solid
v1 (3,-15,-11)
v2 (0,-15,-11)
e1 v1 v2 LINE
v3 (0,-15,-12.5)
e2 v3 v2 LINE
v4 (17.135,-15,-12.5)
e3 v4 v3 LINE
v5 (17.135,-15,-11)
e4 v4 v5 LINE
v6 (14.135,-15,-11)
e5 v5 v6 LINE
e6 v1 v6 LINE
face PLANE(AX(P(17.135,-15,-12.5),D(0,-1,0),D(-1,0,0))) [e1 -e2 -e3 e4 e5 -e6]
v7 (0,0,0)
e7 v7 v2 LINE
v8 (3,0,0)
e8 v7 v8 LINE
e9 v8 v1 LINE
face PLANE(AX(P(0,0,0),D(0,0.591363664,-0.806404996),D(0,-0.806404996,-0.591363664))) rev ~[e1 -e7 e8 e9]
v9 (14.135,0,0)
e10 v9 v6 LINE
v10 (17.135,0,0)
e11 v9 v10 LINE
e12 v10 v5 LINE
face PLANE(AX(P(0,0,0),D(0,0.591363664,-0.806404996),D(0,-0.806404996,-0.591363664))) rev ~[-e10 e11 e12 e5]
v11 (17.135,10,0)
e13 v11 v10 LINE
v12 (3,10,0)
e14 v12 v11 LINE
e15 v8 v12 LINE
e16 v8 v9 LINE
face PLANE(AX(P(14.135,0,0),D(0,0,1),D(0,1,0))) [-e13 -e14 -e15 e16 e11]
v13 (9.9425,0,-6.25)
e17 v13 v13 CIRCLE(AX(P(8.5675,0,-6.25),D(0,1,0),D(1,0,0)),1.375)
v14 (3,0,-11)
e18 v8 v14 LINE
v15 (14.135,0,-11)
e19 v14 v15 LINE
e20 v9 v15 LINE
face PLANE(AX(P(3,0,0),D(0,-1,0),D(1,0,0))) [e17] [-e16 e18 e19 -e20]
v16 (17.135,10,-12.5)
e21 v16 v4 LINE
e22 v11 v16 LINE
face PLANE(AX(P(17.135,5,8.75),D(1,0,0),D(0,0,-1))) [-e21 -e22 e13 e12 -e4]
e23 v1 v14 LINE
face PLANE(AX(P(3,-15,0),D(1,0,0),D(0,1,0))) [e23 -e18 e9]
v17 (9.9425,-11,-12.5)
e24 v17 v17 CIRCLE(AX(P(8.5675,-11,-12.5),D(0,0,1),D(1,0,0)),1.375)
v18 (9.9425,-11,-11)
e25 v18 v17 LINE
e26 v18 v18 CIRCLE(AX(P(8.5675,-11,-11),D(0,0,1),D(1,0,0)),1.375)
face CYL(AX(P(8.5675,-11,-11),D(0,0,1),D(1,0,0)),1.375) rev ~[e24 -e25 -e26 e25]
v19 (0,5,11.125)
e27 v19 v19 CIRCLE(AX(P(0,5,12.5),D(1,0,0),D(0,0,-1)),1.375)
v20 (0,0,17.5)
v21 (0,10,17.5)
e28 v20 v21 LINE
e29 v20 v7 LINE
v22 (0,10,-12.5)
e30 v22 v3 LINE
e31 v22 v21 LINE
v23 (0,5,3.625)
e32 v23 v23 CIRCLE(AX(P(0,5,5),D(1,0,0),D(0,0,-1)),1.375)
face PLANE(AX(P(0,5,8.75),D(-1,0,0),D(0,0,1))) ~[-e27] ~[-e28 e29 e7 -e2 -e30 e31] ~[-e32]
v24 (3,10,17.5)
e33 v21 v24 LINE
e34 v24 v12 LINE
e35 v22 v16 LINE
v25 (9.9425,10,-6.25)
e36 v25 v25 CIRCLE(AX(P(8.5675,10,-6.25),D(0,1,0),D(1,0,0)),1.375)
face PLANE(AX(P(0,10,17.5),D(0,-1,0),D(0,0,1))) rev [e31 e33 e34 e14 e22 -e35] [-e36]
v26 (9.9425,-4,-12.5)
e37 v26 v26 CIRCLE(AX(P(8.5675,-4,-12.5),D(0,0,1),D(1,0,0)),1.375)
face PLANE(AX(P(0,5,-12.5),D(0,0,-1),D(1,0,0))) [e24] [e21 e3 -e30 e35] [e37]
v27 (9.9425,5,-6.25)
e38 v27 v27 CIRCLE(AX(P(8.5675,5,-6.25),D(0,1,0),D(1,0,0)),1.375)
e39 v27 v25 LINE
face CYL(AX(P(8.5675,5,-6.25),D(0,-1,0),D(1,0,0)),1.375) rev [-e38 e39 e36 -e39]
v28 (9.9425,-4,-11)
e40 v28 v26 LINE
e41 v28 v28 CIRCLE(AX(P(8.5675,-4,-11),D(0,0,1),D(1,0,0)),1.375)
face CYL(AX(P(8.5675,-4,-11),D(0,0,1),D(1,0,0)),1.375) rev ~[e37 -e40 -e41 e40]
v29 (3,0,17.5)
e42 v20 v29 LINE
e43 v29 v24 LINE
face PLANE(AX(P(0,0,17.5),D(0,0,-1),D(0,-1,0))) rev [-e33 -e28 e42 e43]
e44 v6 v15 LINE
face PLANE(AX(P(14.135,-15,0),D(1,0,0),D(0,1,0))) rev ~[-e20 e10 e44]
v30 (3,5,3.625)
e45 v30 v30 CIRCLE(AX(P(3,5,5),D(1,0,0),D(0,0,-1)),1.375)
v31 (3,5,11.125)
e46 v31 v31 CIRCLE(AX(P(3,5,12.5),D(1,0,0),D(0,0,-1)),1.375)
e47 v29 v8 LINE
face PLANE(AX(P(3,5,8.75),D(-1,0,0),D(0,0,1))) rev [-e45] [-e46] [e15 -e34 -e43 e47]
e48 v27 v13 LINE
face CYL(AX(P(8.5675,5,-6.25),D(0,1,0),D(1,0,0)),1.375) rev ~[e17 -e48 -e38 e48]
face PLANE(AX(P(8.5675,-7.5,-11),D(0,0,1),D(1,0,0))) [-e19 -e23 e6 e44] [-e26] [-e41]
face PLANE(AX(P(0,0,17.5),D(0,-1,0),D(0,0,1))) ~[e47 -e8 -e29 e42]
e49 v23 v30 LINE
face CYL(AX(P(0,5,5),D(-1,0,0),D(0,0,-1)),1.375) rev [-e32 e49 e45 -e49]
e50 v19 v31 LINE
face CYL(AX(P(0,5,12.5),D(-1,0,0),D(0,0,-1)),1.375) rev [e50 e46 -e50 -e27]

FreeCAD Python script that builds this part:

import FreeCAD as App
import Part
import Sketcher

doc = App.newDocument("Part")
body = doc.addObject("PartDesign::Body", "Body")

sketch1 = doc.addObject("Sketcher::SketchObject", "Sketch")
body.addObject(sketch1)
sketch1.AttachmentSupport = (doc.XZ_Plane, [""])
sketch1.MapMode = "FlatFace"
sketch1.addGeometry(Part.LineSegment(App.Vector(0, -12.5, 0), App.Vector(0, 0, 0)), False)
sketch1.addGeometry(Part.LineSegment(App.Vector(0, 0, 0), App.Vector(17.135, 0, 0)), False)
sketch1.addGeometry(Part.LineSegment(App.Vector(17.135, 0, 0), App.Vector(17.135, -12.5, 0)), False)
sketch1.addGeometry(Part.LineSegment(App.Vector(17.135, -12.5, 0), App.Vector(0, -12.5, 0)), False)
sketch1.addConstraint(Sketcher.Constraint("Coincident", 0, 2, 1, 1))
sketch1.addConstraint(Sketcher.Constraint("Coincident", 1, 2, 2, 1))
sketch1.addConstraint(Sketcher.Constraint("Coincident", 2, 2, 3, 1))
sketch1.addConstraint(Sketcher.Constraint("Coincident", 3, 2, 0, 1))
sketch1.addConstraint(Sketcher.Constraint("Vertical", 0))
sketch1.addConstraint(Sketcher.Constraint("Horizontal", 1))
sketch1.addConstraint(Sketcher.Constraint("Vertical", 2))
sketch1.addConstraint(Sketcher.Constraint("Horizontal", 3))
sketch1.addConstraint(Sketcher.Constraint("Coincident", 0, 2, -1, 1))
sketch1.addConstraint(Sketcher.Constraint("DistanceY", 0, 1, 0, 2, 12.5))
sketch1.addConstraint(Sketcher.Constraint("DistanceX", 1, 1, 1, 2, 17.135))
pad1 = doc.addObject("PartDesign::Pad", "Pad")
body.addObject(pad1)
pad1.Profile = sketch1
pad1.Length = 5
pad1.Reversed = True

sketch2 = doc.addObject("Sketcher::SketchObject", "Sketch001")
body.addObject(sketch2)
sketch2.AttachmentSupport = (doc.XY_Plane, [""])
sketch2.MapMode = "FlatFace"
sketch2.AttachmentOffset = App.Placement(App.Vector(0, 0, -12.5), App.Rotation())
sketch2.addGeometry(Part.LineSegment(App.Vector(17.135, 0, 0), App.Vector(17.135, -15, 0)), False)
sketch2.addGeometry(Part.LineSegment(App.Vector(17.135, -15, 0), App.Vector(0, -15, 0)), False)
sketch2.addGeometry(Part.LineSegment(App.Vector(0, -15, 0), App.Vector(0, 0, 0)), False)
sketch2.addGeometry(Part.LineSegment(App.Vector(0, 0, 0), App.Vector(17.135, 0, 0)), False)
sketch2.addConstraint(Sketcher.Constraint("Coincident", 0, 2, 1, 1))
sketch2.addConstraint(Sketcher.Constraint("Coincident", 1, 2, 2, 1))
sketch2.addConstraint(Sketcher.Constraint("Coincident", 2, 2, 3, 1))
sketch2.addConstraint(Sketcher.Constraint("Coincident", 3, 2, 0, 1))
sketch2.addConstraint(Sketcher.Constraint("Vertical", 0))
sketch2.addConstraint(Sketcher.Constraint("Horizontal", 1))
sketch2.addConstraint(Sketcher.Constraint("Vertical", 2))
sketch2.addConstraint(Sketcher.Constraint("Horizontal", 3))
sketch2.addConstraint(Sketcher.Constraint("Coincident", 2, 2, -1, 1))
sketch2.addConstraint(Sketcher.Constraint("DistanceY", 0, 2, 0, 1, 15.0))
sketch2.addConstraint(Sketcher.Constraint("DistanceX", 1, 2, 1, 1, 17.135))
pad2 = doc.addObject("PartDesign::Pad", "Pad001")
body.addObject(pad2)
pad2.Profile = sketch2
pad2.Length = 1.5

sketch3 = doc.addObject("Sketcher::SketchObject", "Sketch002")
body.addObject(sketch3)
sketch3.AttachmentSupport = (doc.YZ_Plane, [""])
sketch3.MapMode = "FlatFace"
sketch3.addGeometry(Part.LineSegment(App.Vector(-15, -11, 0), App.Vector(0, 0, 0)), False)
sketch3.addGeometry(Part.LineSegment(App.Vector(0, 0, 0), App.Vector(0, -11, 0)), False)
sketch3.addGeometry(Part.LineSegment(App.Vector(0, -11, 0), App.Vector(-15, -11, 0)), False)
sketch3.addConstraint(Sketcher.Constraint("Coincident", 0, 2, 1, 1))
sketch3.addConstraint(Sketcher.Constraint("Coincident", 1, 2, 2, 1))
sketch3.addConstraint(Sketcher.Constraint("Coincident", 2, 2, 0, 1))
sketch3.addConstraint(Sketcher.Constraint("Vertical", 1))
sketch3.addConstraint(Sketcher.Constraint("Horizontal", 2))
sketch3.addConstraint(Sketcher.Constraint("Coincident", 0, 2, -1, 1))
sketch3.addConstraint(Sketcher.Constraint("DistanceX", 2, 2, 2, 1, 15.0))
sketch3.addConstraint(Sketcher.Constraint("DistanceY", 1, 2, 1, 1, 11.0))
pad3 = doc.addObject("PartDesign::Pad", "Pad002")
body.addObject(pad3)
pad3.Profile = sketch3
pad3.Length = 17.135

sketch4 = doc.addObject("Sketcher::SketchObject", "Sketch003")
body.addObject(sketch4)
sketch4.AttachmentSupport = (doc.XY_Plane, [""])
sketch4.MapMode = "FlatFace"
sketch4.addGeometry(Part.LineSegment(App.Vector(3, 0, 0), App.Vector(3, -15, 0)), False)
sketch4.addGeometry(Part.LineSegment(App.Vector(3, -15, 0), App.Vector(14.135, -15, 0)), False)
sketch4.addGeometry(Part.LineSegment(App.Vector(14.135, -15, 0), App.Vector(14.135, 0, 0)), False)
sketch4.addGeometry(Part.LineSegment(App.Vector(14.135, 0, 0), App.Vector(3, 0, 0)), False)
sketch4.addConstraint(Sketcher.Constraint("Coincident", 0, 2, 1, 1))
sketch4.addConstraint(Sketcher.Constraint("Coincident", 1, 2, 2, 1))
sketch4.addConstraint(Sketcher.Constraint("Coincident", 2, 2, 3, 1))
sketch4.addConstraint(Sketcher.Constraint("Coincident", 3, 2, 0, 1))
sketch4.addConstraint(Sketcher.Constraint("Vertical", 0))
sketch4.addConstraint(Sketcher.Constraint("Horizontal", 1))
sketch4.addConstraint(Sketcher.Constraint("Vertical", 2))
sketch4.addConstraint(Sketcher.Constraint("Horizontal", 3))
sketch4.addConstraint(Sketcher.Constraint("PointOnObject", 2, 2, -1))
sketch4.addConstraint(Sketcher.Constraint("DistanceY", 0, 2, 0, 1, 15.0))
sketch4.addConstraint(Sketcher.Constraint("DistanceX", -1, 1, 0, 2, 3.0))
sketch4.addConstraint(Sketcher.Constraint("DistanceX", 1, 1, 1, 2, 11.135))
pocket1 = doc.addObject("PartDesign::Pocket", "Pocket")
body.addObject(pocket1)
pocket1.Profile = sketch4
pocket1.Length = 11

sketch5 = doc.addObject("Sketcher::SketchObject", "Sketch004")
body.addObject(sketch5)
sketch5.AttachmentSupport = (doc.XY_Plane, [""])
sketch5.MapMode = "FlatFace"
sketch5.AttachmentOffset = App.Placement(App.Vector(0, 0, -11), App.Rotation())
sketch5.addGeometry(Part.Circle(App.Vector(8.5675, -4, 0), App.Vector(0, 0, 1), 1.375), False)
sketch5.addGeometry(Part.Circle(App.Vector(8.5675, -11, 0), App.Vector(0, 0, 1), 1.375), False)
sketch5.addConstraint(Sketcher.Constraint("Equal", 0, 1))
sketch5.addConstraint(Sketcher.Constraint("Vertical", 0, 3, 1, 3))
sketch5.addConstraint(Sketcher.Constraint("Diameter", 0, 2.75))
sketch5.addConstraint(Sketcher.Constraint("DistanceY", 0, 3, -1, 1, 4.0))
sketch5.addConstraint(Sketcher.Constraint("DistanceY", 1, 3, -1, 1, 11.0))
sketch5.addConstraint(Sketcher.Constraint("DistanceX", -1, 1, 0, 3, 8.5675))
pocket2 = doc.addObject("PartDesign::Pocket", "Pocket001")
body.addObject(pocket2)
pocket2.Profile = sketch5
pocket2.Length = 2

sketch6 = doc.addObject("Sketcher::SketchObject", "Sketch005")
body.addObject(sketch6)
sketch6.AttachmentSupport = (doc.XZ_Plane, [""])
sketch6.MapMode = "FlatFace"
sketch6.AttachmentOffset = App.Placement(App.Vector(0, 0, -5), App.Rotation())
sketch6.addGeometry(Part.Circle(App.Vector(8.5675, -6.25, 0), App.Vector(0, 0, 1), 1.375), False)
sketch6.addConstraint(Sketcher.Constraint("Diameter", 0, 2.75))
sketch6.addConstraint(Sketcher.Constraint("DistanceY", 0, 3, -1, 1, 6.25))
sketch6.addConstraint(Sketcher.Constraint("DistanceX", -1, 1, 0, 3, 8.5675))
pocket3 = doc.addObject("PartDesign::Pocket", "Pocket002")
body.addObject(pocket3)
pocket3.Profile = sketch6
pocket3.Length = 5.75
pocket3.Reversed = True

sketch7 = doc.addObject("Sketcher::SketchObject", "Sketch006")
body.addObject(sketch7)
sketch7.AttachmentSupport = (doc.XZ_Plane, [""])
sketch7.MapMode = "FlatFace"
sketch7.AttachmentOffset = App.Placement(App.Vector(0, 0, -5), App.Rotation())
sketch7.addGeometry(Part.LineSegment(App.Vector(0, -12.5, 0), App.Vector(0, 0, 0)), False)
sketch7.addGeometry(Part.LineSegment(App.Vector(0, 0, 0), App.Vector(17.135, 0, 0)), False)
sketch7.addGeometry(Part.LineSegment(App.Vector(17.135, 0, 0), App.Vector(17.135, -12.5, 0)), False)
sketch7.addGeometry(Part.LineSegment(App.Vector(17.135, -12.5, 0), App.Vector(0, -12.5, 0)), False)
sketch7.addGeometry(Part.Circle(App.Vector(8.5675, -6.25, 0), App.Vector(0, 0, 1), 1.375), False)
sketch7.addConstraint(Sketcher.Constraint("Coincident", 0, 2, 1, 1))
sketch7.addConstraint(Sketcher.Constraint("Coincident", 1, 2, 2, 1))
sketch7.addConstraint(Sketcher.Constraint("Coincident", 2, 2, 3, 1))
sketch7.addConstraint(Sketcher.Constraint("Coincident", 3, 2, 0, 1))
sketch7.addConstraint(Sketcher.Constraint("Vertical", 0))
sketch7.addConstraint(Sketcher.Constraint("Horizontal", 1))
sketch7.addConstraint(Sketcher.Constraint("Vertical", 2))
sketch7.addConstraint(Sketcher.Constraint("Horizontal", 3))
sketch7.addConstraint(Sketcher.Constraint("Coincident", 0, 2, -1, 1))
sketch7.addConstraint(Sketcher.Constraint("Diameter", 4, 2.75))
sketch7.addConstraint(Sketcher.Constraint("DistanceY", 0, 1, 0, 2, 12.5))
sketch7.addConstraint(Sketcher.Constraint("DistanceX", 1, 1, 1, 2, 17.135))
sketch7.addConstraint(Sketcher.Constraint("DistanceY", 4, 3, -1, 1, 6.25))
sketch7.addConstraint(Sketcher.Constraint("DistanceX", -1, 1, 4, 3, 8.5675))
pad4 = doc.addObject("PartDesign::Pad", "Pad003")
body.addObject(pad4)
pad4.Profile = sketch7
pad4.Length = 5
pad4.Reversed = True

sketch8 = doc.addObject("Sketcher::SketchObject", "Sketch007")
body.addObject(sketch8)
sketch8.AttachmentSupport = (doc.YZ_Plane, [""])
sketch8.MapMode = "FlatFace"
sketch8.AttachmentOffset = App.Placement(App.Vector(0, 0, 17.135), App.Rotation())
sketch8.addGeometry(Part.LineSegment(App.Vector(10, 17.5, 0), App.Vector(0, 17.5, 0)), False)
sketch8.addGeometry(Part.LineSegment(App.Vector(0, 17.5, 0), App.Vector(0, 0, 0)), False)
sketch8.addGeometry(Part.LineSegment(App.Vector(0, 0, 0), App.Vector(10, 0, 0)), False)
sketch8.addGeometry(Part.LineSegment(App.Vector(10, 0, 0), App.Vector(10, 17.5, 0)), False)
sketch8.addGeometry(Part.Circle(App.Vector(5, 12.5, 0), App.Vector(0, 0, 1), 1.375), False)
sketch8.addGeometry(Part.Circle(App.Vector(5, 5, 0), App.Vector(0, 0, 1), 1.375), False)
sketch8.addConstraint(Sketcher.Constraint("Coincident", 0, 2, 1, 1))
sketch8.addConstraint(Sketcher.Constraint("Coincident", 1, 2, 2, 1))
sketch8.addConstraint(Sketcher.Constraint("Coincident", 2, 2, 3, 1))
sketch8.addConstraint(Sketcher.Constraint("Coincident", 3, 2, 0, 1))
sketch8.addConstraint(Sketcher.Constraint("Horizontal", 0))
sketch8.addConstraint(Sketcher.Constraint("Vertical", 1))
sketch8.addConstraint(Sketcher.Constraint("Horizontal", 2))
sketch8.addConstraint(Sketcher.Constraint("Vertical", 3))
sketch8.addConstraint(Sketcher.Constraint("Coincident", 1, 2, -1, 1))
sketch8.addConstraint(Sketcher.Constraint("Equal", 4, 5))
sketch8.addConstraint(Sketcher.Constraint("Vertical", 4, 3, 5, 3))
sketch8.addConstraint(Sketcher.Constraint("Diameter", 4, 2.75))
sketch8.addConstraint(Sketcher.Constraint("DistanceX", 0, 2, 0, 1, 10.0))
sketch8.addConstraint(Sketcher.Constraint("DistanceY", 1, 2, 1, 1, 17.5))
sketch8.addConstraint(Sketcher.Constraint("DistanceX", -1, 1, 4, 3, 5.0))
sketch8.addConstraint(Sketcher.Constraint("DistanceY", -1, 1, 5, 3, 5.0))
sketch8.addConstraint(Sketcher.Constraint("DistanceY", 4, 3, 0, 2, 5.0))
pad5 = doc.addObject("PartDesign::Pad", "Pad004")
body.addObject(pad5)
pad5.Profile = sketch8
pad5.Length = 3
pad5.Reversed = True
doc.recompute()

datumplane = doc.addObject("PartDesign::Plane", "DatumPlane")
body.addObject(datumplane)
datumplane.AttachmentSupport = (doc.YZ_Plane, [""])
datumplane.MapMode = "FlatFace"
datumplane.AttachmentOffset = App.Placement(App.Vector(0, 0, 8.5675), App.Rotation())
mirrored = doc.addObject("PartDesign::Mirrored", "Mirrored")
body.addObject(mirrored)
mirrored.Originals = [pad5]
mirrored.MirrorPlane = (datumplane, [""])
body.Tip = mirrored

sketch9 = doc.addObject("Sketcher::SketchObject", "Sketch008")
body.addObject(sketch9)
sketch9.AttachmentSupport = (doc.YZ_Plane, [""])
sketch9.MapMode = "FlatFace"
sketch9.AttachmentOffset = App.Placement(App.Vector(0, 0, 14.135), App.Rotation())
sketch9.addGeometry(Part.LineSegment(App.Vector(10, 0, 0), App.Vector(0, 0, 0)), False)
sketch9.addGeometry(Part.LineSegment(App.Vector(0, 0, 0), App.Vector(0, 17.5, 0)), False)
sketch9.addGeometry(Part.LineSegment(App.Vector(0, 17.5, 0), App.Vector(10, 17.5, 0)), False)
sketch9.addGeometry(Part.LineSegment(App.Vector(10, 17.5, 0), App.Vector(10, 0, 0)), False)
sketch9.addConstraint(Sketcher.Constraint("Coincident", 0, 2, 1, 1))
sketch9.addConstraint(Sketcher.Constraint("Coincident", 1, 2, 2, 1))
sketch9.addConstraint(Sketcher.Constraint("Coincident", 2, 2, 3, 1))
sketch9.addConstraint(Sketcher.Constraint("Coincident", 3, 2, 0, 1))
sketch9.addConstraint(Sketcher.Constraint("Horizontal", 0))
sketch9.addConstraint(Sketcher.Constraint("Vertical", 1))
sketch9.addConstraint(Sketcher.Constraint("Horizontal", 2))
sketch9.addConstraint(Sketcher.Constraint("Vertical", 3))
sketch9.addConstraint(Sketcher.Constraint("Coincident", 0, 2, -1, 1))
sketch9.addConstraint(Sketcher.Constraint("DistanceX", 0, 2, 0, 1, 10.0))
sketch9.addConstraint(Sketcher.Constraint("DistanceY", 1, 1, 1, 2, 17.5))
pocket4 = doc.addObject("PartDesign::Pocket", "Pocket003")
body.addObject(pocket4)
pocket4.Profile = sketch9
pocket4.Length = 10
pocket4.Reversed = True

doc.recompute()
